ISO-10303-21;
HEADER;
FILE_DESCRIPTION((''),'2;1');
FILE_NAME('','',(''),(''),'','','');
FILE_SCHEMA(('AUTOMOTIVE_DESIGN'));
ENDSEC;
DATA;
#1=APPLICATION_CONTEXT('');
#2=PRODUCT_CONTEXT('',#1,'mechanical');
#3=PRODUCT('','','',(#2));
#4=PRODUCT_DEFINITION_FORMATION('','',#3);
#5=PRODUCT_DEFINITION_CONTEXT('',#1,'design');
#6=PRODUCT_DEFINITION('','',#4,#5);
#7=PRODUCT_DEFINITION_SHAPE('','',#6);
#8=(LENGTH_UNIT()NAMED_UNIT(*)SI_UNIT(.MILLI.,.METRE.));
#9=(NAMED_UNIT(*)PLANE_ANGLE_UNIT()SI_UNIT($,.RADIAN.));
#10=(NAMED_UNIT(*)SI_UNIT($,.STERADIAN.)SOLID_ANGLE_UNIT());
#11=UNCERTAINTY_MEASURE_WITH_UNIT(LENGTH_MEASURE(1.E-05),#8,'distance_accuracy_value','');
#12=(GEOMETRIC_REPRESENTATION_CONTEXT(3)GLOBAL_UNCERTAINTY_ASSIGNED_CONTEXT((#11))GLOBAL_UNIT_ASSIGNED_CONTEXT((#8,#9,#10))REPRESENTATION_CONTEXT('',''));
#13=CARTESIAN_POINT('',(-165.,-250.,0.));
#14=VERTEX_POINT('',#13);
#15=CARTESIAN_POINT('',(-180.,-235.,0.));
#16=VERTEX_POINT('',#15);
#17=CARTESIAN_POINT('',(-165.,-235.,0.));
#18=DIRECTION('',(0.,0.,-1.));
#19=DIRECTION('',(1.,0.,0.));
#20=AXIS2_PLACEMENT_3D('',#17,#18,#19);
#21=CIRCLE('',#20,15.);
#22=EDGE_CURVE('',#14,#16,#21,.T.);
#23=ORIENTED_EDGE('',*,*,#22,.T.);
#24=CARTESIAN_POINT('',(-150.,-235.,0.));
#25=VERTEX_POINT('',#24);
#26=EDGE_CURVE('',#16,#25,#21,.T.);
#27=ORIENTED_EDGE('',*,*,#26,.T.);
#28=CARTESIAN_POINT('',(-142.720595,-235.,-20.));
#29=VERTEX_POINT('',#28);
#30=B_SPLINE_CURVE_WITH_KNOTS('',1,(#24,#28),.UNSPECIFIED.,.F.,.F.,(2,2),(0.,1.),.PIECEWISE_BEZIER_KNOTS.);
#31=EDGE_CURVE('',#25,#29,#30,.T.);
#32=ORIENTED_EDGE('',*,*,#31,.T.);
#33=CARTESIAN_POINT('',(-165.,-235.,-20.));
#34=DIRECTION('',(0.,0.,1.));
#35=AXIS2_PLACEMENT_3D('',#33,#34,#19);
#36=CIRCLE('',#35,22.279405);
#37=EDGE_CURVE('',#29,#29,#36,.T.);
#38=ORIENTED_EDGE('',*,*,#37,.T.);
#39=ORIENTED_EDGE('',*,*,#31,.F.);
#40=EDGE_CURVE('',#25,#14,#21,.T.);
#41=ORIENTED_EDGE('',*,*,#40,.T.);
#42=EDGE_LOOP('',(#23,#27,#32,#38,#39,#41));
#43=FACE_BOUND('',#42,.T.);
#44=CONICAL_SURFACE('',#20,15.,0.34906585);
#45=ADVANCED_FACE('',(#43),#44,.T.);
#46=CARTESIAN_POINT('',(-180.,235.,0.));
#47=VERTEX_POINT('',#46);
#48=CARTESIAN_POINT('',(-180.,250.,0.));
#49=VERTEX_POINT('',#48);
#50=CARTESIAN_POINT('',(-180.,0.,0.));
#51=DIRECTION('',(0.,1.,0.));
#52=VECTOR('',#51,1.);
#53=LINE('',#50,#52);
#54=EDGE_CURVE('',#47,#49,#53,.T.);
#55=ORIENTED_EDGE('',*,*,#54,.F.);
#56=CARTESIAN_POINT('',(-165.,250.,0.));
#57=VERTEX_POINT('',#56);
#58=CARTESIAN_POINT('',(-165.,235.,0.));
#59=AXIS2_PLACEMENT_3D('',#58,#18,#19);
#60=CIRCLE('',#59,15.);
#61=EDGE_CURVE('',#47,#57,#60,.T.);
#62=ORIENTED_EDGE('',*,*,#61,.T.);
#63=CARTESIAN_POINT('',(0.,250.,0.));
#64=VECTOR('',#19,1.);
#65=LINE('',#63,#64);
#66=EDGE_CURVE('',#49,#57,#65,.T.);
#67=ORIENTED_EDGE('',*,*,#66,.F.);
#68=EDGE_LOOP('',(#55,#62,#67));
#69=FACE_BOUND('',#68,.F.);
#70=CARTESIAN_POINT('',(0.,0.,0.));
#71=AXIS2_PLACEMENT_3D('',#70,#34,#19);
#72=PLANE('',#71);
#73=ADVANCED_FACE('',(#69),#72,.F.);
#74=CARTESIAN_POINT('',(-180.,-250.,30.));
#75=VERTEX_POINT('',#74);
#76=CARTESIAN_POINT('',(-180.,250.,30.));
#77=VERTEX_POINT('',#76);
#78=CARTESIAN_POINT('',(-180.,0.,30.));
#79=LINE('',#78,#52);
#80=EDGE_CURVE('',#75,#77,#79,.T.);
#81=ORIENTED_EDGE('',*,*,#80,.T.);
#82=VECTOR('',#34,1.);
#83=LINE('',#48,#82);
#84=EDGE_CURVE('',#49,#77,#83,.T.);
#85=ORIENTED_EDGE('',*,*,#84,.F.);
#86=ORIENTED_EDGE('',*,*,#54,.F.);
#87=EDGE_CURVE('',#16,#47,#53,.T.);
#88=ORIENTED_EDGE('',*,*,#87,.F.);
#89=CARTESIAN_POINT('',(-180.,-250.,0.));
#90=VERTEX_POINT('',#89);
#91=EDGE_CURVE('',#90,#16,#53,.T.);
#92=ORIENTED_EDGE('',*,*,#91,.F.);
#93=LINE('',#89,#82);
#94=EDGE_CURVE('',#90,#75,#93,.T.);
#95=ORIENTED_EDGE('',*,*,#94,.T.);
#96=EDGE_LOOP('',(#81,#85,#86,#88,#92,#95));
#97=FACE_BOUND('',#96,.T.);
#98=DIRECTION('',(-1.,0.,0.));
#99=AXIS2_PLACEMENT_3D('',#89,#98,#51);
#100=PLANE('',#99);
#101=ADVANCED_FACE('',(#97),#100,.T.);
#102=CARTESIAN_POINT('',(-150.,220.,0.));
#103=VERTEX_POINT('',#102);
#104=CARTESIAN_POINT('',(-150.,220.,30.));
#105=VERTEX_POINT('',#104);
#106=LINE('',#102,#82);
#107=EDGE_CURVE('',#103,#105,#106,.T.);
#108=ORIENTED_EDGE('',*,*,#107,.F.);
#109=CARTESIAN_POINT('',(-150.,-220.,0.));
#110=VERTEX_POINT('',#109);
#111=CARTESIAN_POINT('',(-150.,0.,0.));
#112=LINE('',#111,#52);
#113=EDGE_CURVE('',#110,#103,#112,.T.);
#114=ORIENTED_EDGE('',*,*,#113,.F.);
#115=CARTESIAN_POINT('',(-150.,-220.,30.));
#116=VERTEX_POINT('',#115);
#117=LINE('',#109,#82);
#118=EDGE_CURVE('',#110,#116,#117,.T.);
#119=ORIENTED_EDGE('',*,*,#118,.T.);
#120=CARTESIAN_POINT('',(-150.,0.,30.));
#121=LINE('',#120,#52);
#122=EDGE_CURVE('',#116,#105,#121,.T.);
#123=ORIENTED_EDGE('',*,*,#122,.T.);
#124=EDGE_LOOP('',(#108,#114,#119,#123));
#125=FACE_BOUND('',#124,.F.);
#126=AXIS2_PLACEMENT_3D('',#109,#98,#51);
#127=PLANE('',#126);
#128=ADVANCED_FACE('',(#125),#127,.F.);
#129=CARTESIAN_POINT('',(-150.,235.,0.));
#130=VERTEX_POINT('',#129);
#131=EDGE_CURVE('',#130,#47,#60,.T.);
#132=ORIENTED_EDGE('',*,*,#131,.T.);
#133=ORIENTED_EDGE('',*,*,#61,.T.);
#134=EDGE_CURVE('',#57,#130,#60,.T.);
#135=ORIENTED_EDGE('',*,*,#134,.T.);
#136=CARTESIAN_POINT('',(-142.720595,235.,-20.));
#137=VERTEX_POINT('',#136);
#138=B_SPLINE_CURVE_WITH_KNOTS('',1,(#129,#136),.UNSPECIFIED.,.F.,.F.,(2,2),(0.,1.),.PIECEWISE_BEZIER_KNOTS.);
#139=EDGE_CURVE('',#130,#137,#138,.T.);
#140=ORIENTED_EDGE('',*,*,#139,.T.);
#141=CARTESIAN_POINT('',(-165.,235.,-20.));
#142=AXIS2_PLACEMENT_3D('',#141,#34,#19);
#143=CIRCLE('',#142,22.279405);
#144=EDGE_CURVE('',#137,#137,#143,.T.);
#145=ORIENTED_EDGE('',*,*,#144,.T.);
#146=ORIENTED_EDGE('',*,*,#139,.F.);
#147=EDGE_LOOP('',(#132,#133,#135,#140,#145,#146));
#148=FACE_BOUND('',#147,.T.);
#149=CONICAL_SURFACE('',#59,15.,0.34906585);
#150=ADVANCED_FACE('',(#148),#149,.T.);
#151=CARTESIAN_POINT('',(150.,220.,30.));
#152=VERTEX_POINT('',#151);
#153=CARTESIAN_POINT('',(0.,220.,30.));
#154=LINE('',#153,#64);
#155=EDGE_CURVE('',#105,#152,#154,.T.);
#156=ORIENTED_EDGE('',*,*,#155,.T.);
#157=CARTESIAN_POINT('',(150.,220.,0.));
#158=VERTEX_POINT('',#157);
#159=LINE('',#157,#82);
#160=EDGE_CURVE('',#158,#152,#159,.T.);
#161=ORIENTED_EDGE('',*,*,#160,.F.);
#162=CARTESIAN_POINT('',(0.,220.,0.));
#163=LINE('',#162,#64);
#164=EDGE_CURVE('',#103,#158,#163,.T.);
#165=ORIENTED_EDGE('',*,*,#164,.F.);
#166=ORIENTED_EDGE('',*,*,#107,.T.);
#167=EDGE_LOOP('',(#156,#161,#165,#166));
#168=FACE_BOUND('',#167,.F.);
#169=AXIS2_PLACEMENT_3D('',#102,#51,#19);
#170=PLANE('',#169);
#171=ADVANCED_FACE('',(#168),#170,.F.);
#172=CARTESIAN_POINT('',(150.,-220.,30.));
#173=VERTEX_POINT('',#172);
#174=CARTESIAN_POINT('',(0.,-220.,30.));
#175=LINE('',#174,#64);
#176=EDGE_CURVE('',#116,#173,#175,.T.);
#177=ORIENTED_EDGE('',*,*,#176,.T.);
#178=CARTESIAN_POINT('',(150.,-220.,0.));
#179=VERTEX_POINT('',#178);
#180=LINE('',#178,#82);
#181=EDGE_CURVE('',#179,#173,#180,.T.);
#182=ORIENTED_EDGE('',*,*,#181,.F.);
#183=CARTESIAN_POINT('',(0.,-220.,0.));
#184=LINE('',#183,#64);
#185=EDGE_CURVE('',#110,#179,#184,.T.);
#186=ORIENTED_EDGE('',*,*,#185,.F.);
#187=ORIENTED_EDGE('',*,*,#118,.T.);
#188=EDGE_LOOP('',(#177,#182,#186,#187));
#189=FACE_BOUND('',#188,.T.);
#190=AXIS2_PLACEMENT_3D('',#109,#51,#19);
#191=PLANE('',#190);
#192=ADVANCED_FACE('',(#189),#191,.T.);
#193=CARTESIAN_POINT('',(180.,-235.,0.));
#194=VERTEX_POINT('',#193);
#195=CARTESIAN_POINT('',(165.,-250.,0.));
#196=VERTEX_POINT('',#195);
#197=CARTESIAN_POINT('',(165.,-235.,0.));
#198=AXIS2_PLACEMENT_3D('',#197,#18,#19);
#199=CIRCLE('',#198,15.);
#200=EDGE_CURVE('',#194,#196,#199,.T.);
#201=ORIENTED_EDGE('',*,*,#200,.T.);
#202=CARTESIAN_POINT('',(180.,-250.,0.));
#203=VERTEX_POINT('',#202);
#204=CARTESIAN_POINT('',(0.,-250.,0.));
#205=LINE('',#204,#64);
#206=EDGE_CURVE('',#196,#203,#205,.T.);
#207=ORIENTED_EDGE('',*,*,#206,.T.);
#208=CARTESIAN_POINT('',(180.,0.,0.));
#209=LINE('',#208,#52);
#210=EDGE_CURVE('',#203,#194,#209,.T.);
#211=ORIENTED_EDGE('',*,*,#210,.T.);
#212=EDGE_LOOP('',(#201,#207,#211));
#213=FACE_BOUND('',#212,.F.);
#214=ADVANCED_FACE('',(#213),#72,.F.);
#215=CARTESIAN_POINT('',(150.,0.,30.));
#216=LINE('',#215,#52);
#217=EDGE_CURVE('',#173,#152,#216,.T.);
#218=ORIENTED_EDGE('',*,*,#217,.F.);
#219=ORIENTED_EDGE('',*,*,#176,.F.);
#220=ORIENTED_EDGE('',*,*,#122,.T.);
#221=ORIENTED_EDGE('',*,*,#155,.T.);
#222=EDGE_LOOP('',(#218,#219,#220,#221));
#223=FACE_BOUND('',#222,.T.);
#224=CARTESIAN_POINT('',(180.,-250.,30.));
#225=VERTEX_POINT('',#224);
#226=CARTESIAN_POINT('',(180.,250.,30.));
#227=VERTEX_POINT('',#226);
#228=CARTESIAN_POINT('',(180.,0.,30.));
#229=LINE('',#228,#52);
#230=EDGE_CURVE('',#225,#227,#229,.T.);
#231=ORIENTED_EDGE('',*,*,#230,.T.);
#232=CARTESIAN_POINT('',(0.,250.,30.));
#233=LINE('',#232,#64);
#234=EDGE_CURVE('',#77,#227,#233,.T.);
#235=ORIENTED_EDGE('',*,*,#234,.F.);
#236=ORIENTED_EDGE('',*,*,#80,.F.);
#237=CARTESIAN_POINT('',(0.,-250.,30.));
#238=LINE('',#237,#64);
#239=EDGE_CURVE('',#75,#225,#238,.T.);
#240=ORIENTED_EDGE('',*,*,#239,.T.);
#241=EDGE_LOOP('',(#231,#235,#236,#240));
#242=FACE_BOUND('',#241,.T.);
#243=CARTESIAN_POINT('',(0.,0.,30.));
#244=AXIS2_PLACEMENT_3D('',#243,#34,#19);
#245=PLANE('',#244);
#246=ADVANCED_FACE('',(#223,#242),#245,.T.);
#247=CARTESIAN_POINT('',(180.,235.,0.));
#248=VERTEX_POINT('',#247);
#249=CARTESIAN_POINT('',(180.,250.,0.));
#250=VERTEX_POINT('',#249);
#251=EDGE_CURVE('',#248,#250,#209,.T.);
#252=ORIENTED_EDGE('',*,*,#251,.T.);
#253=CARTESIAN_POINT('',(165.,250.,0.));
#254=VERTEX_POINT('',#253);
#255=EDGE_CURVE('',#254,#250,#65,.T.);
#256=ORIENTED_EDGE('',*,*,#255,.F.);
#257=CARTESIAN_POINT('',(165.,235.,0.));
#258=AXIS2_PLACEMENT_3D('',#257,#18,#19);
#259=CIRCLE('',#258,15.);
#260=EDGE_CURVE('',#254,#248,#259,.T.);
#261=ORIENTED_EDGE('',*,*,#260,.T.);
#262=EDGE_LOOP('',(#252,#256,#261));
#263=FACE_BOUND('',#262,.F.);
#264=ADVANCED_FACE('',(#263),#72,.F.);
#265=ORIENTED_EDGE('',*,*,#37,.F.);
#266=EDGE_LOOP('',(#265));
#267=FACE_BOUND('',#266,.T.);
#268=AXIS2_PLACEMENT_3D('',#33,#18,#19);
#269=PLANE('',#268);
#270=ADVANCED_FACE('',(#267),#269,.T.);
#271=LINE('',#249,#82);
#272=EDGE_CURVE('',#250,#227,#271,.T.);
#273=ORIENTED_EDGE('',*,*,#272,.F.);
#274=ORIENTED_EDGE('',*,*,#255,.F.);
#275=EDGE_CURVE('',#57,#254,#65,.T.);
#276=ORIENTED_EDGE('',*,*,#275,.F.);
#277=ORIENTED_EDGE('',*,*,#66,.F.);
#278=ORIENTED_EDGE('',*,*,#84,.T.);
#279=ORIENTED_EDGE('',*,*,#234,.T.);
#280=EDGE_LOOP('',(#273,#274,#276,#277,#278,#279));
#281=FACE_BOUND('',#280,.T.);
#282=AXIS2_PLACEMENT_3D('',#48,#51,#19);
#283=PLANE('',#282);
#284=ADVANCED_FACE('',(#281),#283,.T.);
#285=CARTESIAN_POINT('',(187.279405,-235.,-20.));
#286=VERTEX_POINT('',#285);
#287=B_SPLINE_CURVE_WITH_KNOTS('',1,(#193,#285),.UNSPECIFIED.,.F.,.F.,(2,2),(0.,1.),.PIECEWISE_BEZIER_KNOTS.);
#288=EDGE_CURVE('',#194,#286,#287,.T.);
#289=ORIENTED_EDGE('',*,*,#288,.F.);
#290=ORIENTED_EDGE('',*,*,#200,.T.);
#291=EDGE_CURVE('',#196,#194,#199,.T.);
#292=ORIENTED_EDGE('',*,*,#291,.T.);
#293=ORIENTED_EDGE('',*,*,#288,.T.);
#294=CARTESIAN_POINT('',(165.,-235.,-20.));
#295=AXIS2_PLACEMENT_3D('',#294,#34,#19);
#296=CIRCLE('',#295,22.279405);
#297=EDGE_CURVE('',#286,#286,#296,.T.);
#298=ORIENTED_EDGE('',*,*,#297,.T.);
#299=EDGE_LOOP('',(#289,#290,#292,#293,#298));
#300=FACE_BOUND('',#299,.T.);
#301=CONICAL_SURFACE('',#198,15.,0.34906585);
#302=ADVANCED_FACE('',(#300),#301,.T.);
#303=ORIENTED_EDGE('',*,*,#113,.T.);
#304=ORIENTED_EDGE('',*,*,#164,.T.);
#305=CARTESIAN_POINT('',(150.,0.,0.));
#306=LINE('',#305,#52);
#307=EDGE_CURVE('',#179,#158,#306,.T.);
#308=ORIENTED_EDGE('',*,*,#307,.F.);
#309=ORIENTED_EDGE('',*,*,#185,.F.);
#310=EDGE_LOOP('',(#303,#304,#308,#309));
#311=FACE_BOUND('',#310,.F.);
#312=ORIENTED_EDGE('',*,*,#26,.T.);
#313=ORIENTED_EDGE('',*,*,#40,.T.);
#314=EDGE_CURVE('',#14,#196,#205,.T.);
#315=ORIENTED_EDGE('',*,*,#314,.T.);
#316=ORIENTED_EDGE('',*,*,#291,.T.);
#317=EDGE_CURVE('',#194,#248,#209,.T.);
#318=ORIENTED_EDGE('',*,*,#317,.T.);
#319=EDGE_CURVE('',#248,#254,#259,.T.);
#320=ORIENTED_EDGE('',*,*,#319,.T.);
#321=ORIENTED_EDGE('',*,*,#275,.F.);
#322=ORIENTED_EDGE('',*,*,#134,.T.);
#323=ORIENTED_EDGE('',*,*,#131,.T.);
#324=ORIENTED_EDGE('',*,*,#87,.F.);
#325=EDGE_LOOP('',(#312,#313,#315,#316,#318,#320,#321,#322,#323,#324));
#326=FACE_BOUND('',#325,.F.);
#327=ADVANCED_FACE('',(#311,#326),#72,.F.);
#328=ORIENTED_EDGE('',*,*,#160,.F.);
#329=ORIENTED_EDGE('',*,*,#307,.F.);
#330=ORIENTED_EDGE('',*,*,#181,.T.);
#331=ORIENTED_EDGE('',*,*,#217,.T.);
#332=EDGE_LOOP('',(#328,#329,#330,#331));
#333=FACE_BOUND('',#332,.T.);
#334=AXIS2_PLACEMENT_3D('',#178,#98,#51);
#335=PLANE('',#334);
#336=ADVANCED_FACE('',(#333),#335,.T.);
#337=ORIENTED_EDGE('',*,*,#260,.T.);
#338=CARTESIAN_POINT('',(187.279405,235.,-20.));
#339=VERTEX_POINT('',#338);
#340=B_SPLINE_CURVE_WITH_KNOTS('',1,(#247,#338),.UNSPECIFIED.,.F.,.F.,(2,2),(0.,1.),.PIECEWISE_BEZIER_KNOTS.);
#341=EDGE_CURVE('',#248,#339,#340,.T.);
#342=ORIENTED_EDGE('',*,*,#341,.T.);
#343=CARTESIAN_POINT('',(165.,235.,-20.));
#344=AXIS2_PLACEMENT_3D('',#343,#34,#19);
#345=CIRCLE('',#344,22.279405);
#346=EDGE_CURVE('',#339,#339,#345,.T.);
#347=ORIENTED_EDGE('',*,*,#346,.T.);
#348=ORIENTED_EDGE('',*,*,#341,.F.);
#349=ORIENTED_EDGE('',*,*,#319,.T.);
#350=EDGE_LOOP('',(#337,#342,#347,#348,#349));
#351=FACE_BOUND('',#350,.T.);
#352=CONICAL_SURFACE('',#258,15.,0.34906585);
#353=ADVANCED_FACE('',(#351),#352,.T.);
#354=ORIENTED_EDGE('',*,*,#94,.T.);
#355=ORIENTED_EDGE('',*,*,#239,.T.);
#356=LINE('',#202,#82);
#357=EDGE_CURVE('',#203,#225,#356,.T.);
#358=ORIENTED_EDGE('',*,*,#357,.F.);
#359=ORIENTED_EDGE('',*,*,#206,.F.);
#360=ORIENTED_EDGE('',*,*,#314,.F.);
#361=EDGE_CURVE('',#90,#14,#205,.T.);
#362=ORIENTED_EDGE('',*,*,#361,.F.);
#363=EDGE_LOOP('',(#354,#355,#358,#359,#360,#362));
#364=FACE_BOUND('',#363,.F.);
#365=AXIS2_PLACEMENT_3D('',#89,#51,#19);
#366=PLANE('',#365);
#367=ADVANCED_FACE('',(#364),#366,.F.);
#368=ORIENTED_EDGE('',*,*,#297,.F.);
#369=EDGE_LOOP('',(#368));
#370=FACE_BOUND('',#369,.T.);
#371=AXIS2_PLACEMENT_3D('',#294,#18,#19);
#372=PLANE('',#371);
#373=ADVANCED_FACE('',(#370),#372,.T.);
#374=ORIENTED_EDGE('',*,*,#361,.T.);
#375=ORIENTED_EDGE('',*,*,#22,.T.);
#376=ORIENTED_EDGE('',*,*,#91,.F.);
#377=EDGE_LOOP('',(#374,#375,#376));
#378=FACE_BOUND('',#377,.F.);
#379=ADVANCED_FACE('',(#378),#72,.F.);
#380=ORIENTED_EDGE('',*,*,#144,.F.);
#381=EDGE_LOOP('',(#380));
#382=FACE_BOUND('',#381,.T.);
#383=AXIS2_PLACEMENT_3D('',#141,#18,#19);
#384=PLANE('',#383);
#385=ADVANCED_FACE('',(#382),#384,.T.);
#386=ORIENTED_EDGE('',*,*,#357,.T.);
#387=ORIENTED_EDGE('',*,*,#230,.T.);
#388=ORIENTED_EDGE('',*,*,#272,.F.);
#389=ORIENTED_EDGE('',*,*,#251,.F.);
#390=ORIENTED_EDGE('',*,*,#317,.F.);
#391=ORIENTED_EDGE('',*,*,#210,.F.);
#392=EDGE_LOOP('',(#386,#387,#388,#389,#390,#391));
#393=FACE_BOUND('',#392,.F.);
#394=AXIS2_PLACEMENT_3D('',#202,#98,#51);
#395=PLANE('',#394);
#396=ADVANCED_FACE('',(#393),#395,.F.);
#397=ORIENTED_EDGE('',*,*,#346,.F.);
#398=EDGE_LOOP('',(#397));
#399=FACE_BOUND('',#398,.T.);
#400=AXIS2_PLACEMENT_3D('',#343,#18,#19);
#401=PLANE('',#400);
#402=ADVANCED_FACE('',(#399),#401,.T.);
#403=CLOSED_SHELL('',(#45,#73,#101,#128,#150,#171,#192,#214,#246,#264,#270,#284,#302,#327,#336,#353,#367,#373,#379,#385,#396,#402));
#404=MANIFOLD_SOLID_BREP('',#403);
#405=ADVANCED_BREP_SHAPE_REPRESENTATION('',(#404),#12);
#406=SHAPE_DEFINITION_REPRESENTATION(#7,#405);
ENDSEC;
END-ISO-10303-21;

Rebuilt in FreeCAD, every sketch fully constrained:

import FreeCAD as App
import Part
import Sketcher
from FreeCAD import Vector
Q = App.Units.Quantity

doc = App.newDocument("Part")
body = doc.addObject("PartDesign::Body", "Body")

# Sketch on XY plane
sketch1 = body.newObject("Sketcher::SketchObject", "Sketch")
sketch1.AttachmentSupport = (doc.getObject("XY_Plane"), [""])
sketch1.MapMode = "FlatFace"
sketch1.addGeometry(Part.LineSegment(Vector(-180, 250, 0), Vector(-180, -250, 0)), False)
sketch1.addGeometry(Part.LineSegment(Vector(-180, -250, 0), Vector(180, -250, 0)), False)
sketch1.addGeometry(Part.LineSegment(Vector(180, -250, 0), Vector(180, 250, 0)), False)
sketch1.addGeometry(Part.LineSegment(Vector(180, 250, 0), Vector(-180, 250, 0)), False)
sketch1.addGeometry(Part.LineSegment(Vector(150, -220, 0), Vector(-150, -220, 0)), False)
sketch1.addGeometry(Part.LineSegment(Vector(-150, -220, 0), Vector(-150, 220, 0)), False)
sketch1.addGeometry(Part.LineSegment(Vector(-150, 220, 0), Vector(150, 220, 0)), False)
sketch1.addGeometry(Part.LineSegment(Vector(150, 220, 0), Vector(150, -220, 0)), False)
sketch1.addConstraint(Sketcher.Constraint("Coincident", 0, 2, 1, 1))
sketch1.addConstraint(Sketcher.Constraint("Coincident", 1, 2, 2, 1))
sketch1.addConstraint(Sketcher.Constraint("Coincident", 2, 2, 3, 1))
sketch1.addConstraint(Sketcher.Constraint("Coincident", 3, 2, 0, 1))
sketch1.addConstraint(Sketcher.Constraint("Coincident", 4, 2, 5, 1))
sketch1.addConstraint(Sketcher.Constraint("Coincident", 5, 2, 6, 1))
sketch1.addConstraint(Sketcher.Constraint("Coincident", 6, 2, 7, 1))
sketch1.addConstraint(Sketcher.Constraint("Coincident", 7, 2, 4, 1))
sketch1.addConstraint(Sketcher.Constraint("Vertical", 0))
sketch1.addConstraint(Sketcher.Constraint("Horizontal", 1))
sketch1.addConstraint(Sketcher.Constraint("Vertical", 2))
sketch1.addConstraint(Sketcher.Constraint("Horizontal", 3))
sketch1.addConstraint(Sketcher.Constraint("Horizontal", 4))
sketch1.addConstraint(Sketcher.Constraint("Vertical", 5))
sketch1.addConstraint(Sketcher.Constraint("Horizontal", 6))
sketch1.addConstraint(Sketcher.Constraint("Vertical", 7))
sketch1.addConstraint(Sketcher.Constraint("Symmetric", 0, 2, 2, 2, -1, 1))
sketch1.addConstraint(Sketcher.Constraint("Symmetric", 4, 2, 6, 2, -1, 1))
sketch1.addConstraint(Sketcher.Constraint("DistanceX", 1, 1, 1, 2, Q("360 mm")))
sketch1.addConstraint(Sketcher.Constraint("DistanceX", 4, 2, 4, 1, Q("300 mm")))
sketch1.addConstraint(Sketcher.Constraint("DistanceY", 0, 2, 0, 1, Q("500 mm")))
sketch1.addConstraint(Sketcher.Constraint("DistanceY", 5, 1, 5, 2, Q("440 mm")))
pad1 = body.newObject("PartDesign::Pad", "Pad")
pad1.Profile = sketch1
pad1.Length = 30

# Sketch on XY plane
sketch2 = body.newObject("Sketcher::SketchObject", "Sketch001")
sketch2.AttachmentSupport = (doc.getObject("XY_Plane"), [""])
sketch2.MapMode = "FlatFace"
sketch2.addGeometry(Part.Circle(Vector(-165, -235, 0), Vector(0, 0, 1), 15), False)
sketch2.addGeometry(Part.Circle(Vector(-165, 235, 0), Vector(0, 0, 1), 15), False)
sketch2.addGeometry(Part.Circle(Vector(165, -235, 0), Vector(0, 0, 1), 15), False)
sketch2.addGeometry(Part.Circle(Vector(165, 235, 0), Vector(0, 0, 1), 15), False)
sketch2.addConstraint(Sketcher.Constraint("Equal", 0, 1))
sketch2.addConstraint(Sketcher.Constraint("Equal", 1, 2))
sketch2.addConstraint(Sketcher.Constraint("Equal", 2, 3))
sketch2.addConstraint(Sketcher.Constraint("Symmetric", 1, 3, 2, 3, -1, 1))
sketch2.addConstraint(Sketcher.Constraint("Symmetric", 0, 3, 3, 3, -1, 1))
sketch2.addConstraint(Sketcher.Constraint("Symmetric", 0, 3, 2, 3, -2))
sketch2.addConstraint(Sketcher.Constraint("Diameter", 0, Q("30 mm")))
sketch2.addConstraint(Sketcher.Constraint("DistanceX", 0, 3, -1, 1, Q("165 mm")))
sketch2.addConstraint(Sketcher.Constraint("DistanceY", 0, 3, -1, 1, Q("235 mm")))
pad2 = body.newObject("PartDesign::Pad", "Pad001")
pad2.Profile = sketch2
pad2.Length = 20
pad2.Reversed = True
pad2.TaperAngle = 20

doc.recompute()
